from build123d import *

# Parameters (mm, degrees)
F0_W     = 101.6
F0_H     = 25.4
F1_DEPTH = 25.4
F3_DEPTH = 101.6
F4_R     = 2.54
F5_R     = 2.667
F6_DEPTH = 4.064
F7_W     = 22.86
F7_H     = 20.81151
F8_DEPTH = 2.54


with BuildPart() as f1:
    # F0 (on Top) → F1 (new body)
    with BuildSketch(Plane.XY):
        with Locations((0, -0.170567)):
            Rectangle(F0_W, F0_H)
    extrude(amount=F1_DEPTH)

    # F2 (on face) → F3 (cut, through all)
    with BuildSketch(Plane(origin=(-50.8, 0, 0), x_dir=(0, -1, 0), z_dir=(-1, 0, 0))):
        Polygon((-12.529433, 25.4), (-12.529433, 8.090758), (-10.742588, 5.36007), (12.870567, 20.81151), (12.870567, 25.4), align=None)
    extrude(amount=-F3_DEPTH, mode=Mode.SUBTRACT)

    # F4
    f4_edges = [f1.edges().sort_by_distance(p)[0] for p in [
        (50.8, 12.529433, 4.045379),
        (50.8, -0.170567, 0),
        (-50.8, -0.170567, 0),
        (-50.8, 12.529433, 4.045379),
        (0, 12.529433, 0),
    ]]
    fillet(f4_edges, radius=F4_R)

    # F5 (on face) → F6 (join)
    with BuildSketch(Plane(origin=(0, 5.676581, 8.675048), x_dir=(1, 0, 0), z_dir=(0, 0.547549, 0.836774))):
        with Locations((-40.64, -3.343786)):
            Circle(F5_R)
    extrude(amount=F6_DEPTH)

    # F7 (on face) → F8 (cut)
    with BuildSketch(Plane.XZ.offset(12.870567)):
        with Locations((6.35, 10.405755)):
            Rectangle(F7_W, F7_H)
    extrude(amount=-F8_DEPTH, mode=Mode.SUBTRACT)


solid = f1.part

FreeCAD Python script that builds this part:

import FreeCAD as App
import Part
import Sketcher
from FreeCAD import Vector
Q = App.Units.Quantity


def edges_at(feature, points):
    """Names of the edges that pass closest to the given points."""
    edges = feature.Shape.Edges
    near = lambda p: min(range(len(edges)), key=lambda i: edges[i].distToShape(Part.Vertex(*p))[0])
    return sorted({f"Edge{near(p) + 1}" for p in points})

doc = App.newDocument("Part")
body = doc.addObject("PartDesign::Body", "Body")

# Sketch on XY plane
sketch1 = doc.addObject("Sketcher::SketchObject", "Sketch")
body.addObject(sketch1)
sketch1.AttachmentSupport = (doc.XY_Plane, [""])
sketch1.MapMode = "FlatFace"
sketch1.addGeometry(Part.LineSegment(Vector(-51, 13, 0), Vector(-51, -13, 0)), False)
sketch1.addGeometry(Part.LineSegment(Vector(-51, -13, 0), Vector(51, -13, 0)), False)
sketch1.addGeometry(Part.LineSegment(Vector(51, -13, 0), Vector(51, 13, 0)), False)
sketch1.addGeometry(Part.LineSegment(Vector(51, 13, 0), Vector(-51, 13, 0)), False)
sketch1.addConstraint(Sketcher.Constraint("Coincident", 0, 2, 1, 1))
sketch1.addConstraint(Sketcher.Constraint("Coincident", 1, 2, 2, 1))
sketch1.addConstraint(Sketcher.Constraint("Coincident", 2, 2, 3, 1))
sketch1.addConstraint(Sketcher.Constraint("Coincident", 3, 2, 0, 1))
sketch1.addConstraint(Sketcher.Constraint("Vertical", 0))
sketch1.addConstraint(Sketcher.Constraint("Horizontal", 1))
sketch1.addConstraint(Sketcher.Constraint("Vertical", 2))
sketch1.addConstraint(Sketcher.Constraint("Horizontal", 3))
sketch1.addConstraint(Sketcher.Constraint("DistanceX", 1, 1, 1, 2, Q("4 in")))
sketch1.addConstraint(Sketcher.Constraint("DistanceY", 0, 2, 0, 1, Q("1 in")))
sketch1.addConstraint(Sketcher.Constraint("DistanceX", 0, 2, -1, 1, Q("2 in")))
sketch1.addConstraint(Sketcher.Constraint("DistanceY", 0, 2, -1, 1, 12.870567))
pad1 = doc.addObject("PartDesign::Pad", "Pad")
body.addObject(pad1)
pad1.Profile = sketch1
pad1.Length = Q("1 in")

# Sketch on YZ plane
sketch2 = doc.addObject("Sketcher::SketchObject", "Sketch001")
body.addObject(sketch2)
sketch2.AttachmentSupport = (doc.YZ_Plane, [""])
sketch2.MapMode = "FlatFace"
sketch2.AttachmentOffset = App.Placement(Vector(0, 0, -2 * 25.4), App.Rotation())
sketch2.addGeometry(Part.LineSegment(Vector(12.5, 25.4, 0), Vector(12.5, 8.1, 0)), False)
sketch2.addGeometry(Part.LineSegment(Vector(12.5, 8.1, 0), Vector(10.7, 5.4, 0)), False)
sketch2.addGeometry(Part.LineSegment(Vector(10.7, 5.4, 0), Vector(-12.9, 20.8, 0)), False)
sketch2.addGeometry(Part.LineSegment(Vector(-12.9, 20.8, 0), Vector(-12.9, 25.4, 0)), False)
sketch2.addGeometry(Part.LineSegment(Vector(-12.9, 25.4, 0), Vector(12.5, 25.4, 0)), False)
sketch2.addConstraint(Sketcher.Constraint("Coincident", 0, 2, 1, 1))
sketch2.addConstraint(Sketcher.Constraint("Coincident", 1, 2, 2, 1))
sketch2.addConstraint(Sketcher.Constraint("Coincident", 2, 2, 3, 1))
sketch2.addConstraint(Sketcher.Constraint("Coincident", 3, 2, 4, 1))
sketch2.addConstraint(Sketcher.Constraint("Coincident", 4, 2, 0, 1))
sketch2.addConstraint(Sketcher.Constraint("Vertical", 0))
sketch2.addConstraint(Sketcher.Constraint("Vertical", 3))
sketch2.addConstraint(Sketcher.Constraint("Horizontal", 4))
sketch2.addConstraint(Sketcher.Constraint("Perpendicular", 1, 2))
sketch2.addConstraint(Sketcher.Constraint("DistanceX", 4, 1, 4, 2, Q("1 in")))
sketch2.addConstraint(Sketcher.Constraint("DistanceY", -1, 1, 3, 2, Q("1 in")))
sketch2.addConstraint(Sketcher.Constraint("DistanceY", 0, 2, 0, 1, 17.309242))
sketch2.addConstraint(Sketcher.Constraint("DistanceY", 3, 1, 3, 2, 4.58849))
sketch2.addConstraint(Sketcher.Constraint("DistanceY", -1, 1, 1, 2, 5.36007))
sketch2.addConstraint(Sketcher.Constraint("DistanceX", -1, 1, 0, 2, 12.529433))
pocket1 = doc.addObject("PartDesign::Pocket", "Pocket")
body.addObject(pocket1)
pocket1.Profile = sketch2
pocket1.Type = "ThroughAll"
pocket1.Reversed = True
doc.recompute()

fillet = doc.addObject("PartDesign::Fillet", "Fillet")
body.addObject(fillet)
fillet.Base = (pocket1, edges_at(pocket1, [
    (50.8, 12.529, 4.045),
    (50.8, -0.171, 0),
    (-50.8, -0.171, 0),
    (-50.8, 12.529, 4.045),
    (0, 12.529, 0),
]))
fillet.Radius = Q("0.1 in")

# Sketch on an angled plane
sketch3 = doc.addObject("Sketcher::SketchObject", "Sketch002")
body.addObject(sketch3)
sketch3.Placement = App.Placement(Vector(0, 5.676581, 8.675048), App.Rotation(Vector(1, 0, 0), Vector(0, 0.836773735, -0.547548826), Vector(0, 0.547548826, 0.836773735), "ZXY"))
sketch3.addGeometry(Part.Circle(Vector(-40.6, -3.3, 0), Vector(0, 0, 1), 2.7), False)
sketch3.addConstraint(Sketcher.Constraint("Diameter", 0, Q("0.21 in")))
sketch3.addConstraint(Sketcher.Constraint("DistanceX", 0, 3, -1, 1, Q("1.6 in")))
sketch3.addConstraint(Sketcher.Constraint("DistanceY", 0, 3, -1, 1, 3.343786))
pad2 = doc.addObject("PartDesign::Pad", "Pad001")
body.addObject(pad2)
pad2.Profile = sketch3
pad2.Length = Q("0.16 in")

# Sketch on XZ plane
sketch4 = doc.addObject("Sketcher::SketchObject", "Sketch003")
body.addObject(sketch4)
sketch4.AttachmentSupport = (doc.XZ_Plane, [""])
sketch4.MapMode = "FlatFace"
sketch4.AttachmentOffset = App.Placement(Vector(0, 0, 12.870567), App.Rotation())
sketch4.addGeometry(Part.LineSegment(Vector(-5, 21, 0), Vector(-5, 0, 0)), False)
sketch4.addGeometry(Part.LineSegment(Vector(-5, 0, 0), Vector(18, 0, 0)), False)
sketch4.addGeometry(Part.LineSegment(Vector(18, 0, 0), Vector(18, 21, 0)), False)
sketch4.addGeometry(Part.LineSegment(Vector(18, 21, 0), Vector(-5, 21, 0)), False)
sketch4.addConstraint(Sketcher.Constraint("Coincident", 0, 2, 1, 1))
sketch4.addConstraint(Sketcher.Constraint("Coincident", 1, 2, 2, 1))
sketch4.addConstraint(Sketcher.Constraint("Coincident", 2, 2, 3, 1))
sketch4.addConstraint(Sketcher.Constraint("Coincident", 3, 2, 0, 1))
sketch4.addConstraint(Sketcher.Constraint("Vertical", 0))
sketch4.addConstraint(Sketcher.Constraint("Horizontal", 1))
sketch4.addConstraint(Sketcher.Constraint("Vertical", 2))
sketch4.addConstraint(Sketcher.Constraint("Horizontal", 3))
sketch4.addConstraint(Sketcher.Constraint("PointOnObject", 0, 2, -1))
sketch4.addConstraint(Sketcher.Constraint("DistanceX", 1, 1, 1, 2, Q("0.9 in")))
sketch4.addConstraint(Sketcher.Constraint("DistanceX", 0, 2, -1, 1, Q("0.2 in")))
sketch4.addConstraint(Sketcher.Constraint("DistanceY", 0, 2, 0, 1, 20.81151))
pocket2 = doc.addObject("PartDesign::Pocket", "Pocket001")
body.addObject(pocket2)
pocket2.Profile = sketch4
pocket2.Length = Q("0.1 in")

doc.recompute()
